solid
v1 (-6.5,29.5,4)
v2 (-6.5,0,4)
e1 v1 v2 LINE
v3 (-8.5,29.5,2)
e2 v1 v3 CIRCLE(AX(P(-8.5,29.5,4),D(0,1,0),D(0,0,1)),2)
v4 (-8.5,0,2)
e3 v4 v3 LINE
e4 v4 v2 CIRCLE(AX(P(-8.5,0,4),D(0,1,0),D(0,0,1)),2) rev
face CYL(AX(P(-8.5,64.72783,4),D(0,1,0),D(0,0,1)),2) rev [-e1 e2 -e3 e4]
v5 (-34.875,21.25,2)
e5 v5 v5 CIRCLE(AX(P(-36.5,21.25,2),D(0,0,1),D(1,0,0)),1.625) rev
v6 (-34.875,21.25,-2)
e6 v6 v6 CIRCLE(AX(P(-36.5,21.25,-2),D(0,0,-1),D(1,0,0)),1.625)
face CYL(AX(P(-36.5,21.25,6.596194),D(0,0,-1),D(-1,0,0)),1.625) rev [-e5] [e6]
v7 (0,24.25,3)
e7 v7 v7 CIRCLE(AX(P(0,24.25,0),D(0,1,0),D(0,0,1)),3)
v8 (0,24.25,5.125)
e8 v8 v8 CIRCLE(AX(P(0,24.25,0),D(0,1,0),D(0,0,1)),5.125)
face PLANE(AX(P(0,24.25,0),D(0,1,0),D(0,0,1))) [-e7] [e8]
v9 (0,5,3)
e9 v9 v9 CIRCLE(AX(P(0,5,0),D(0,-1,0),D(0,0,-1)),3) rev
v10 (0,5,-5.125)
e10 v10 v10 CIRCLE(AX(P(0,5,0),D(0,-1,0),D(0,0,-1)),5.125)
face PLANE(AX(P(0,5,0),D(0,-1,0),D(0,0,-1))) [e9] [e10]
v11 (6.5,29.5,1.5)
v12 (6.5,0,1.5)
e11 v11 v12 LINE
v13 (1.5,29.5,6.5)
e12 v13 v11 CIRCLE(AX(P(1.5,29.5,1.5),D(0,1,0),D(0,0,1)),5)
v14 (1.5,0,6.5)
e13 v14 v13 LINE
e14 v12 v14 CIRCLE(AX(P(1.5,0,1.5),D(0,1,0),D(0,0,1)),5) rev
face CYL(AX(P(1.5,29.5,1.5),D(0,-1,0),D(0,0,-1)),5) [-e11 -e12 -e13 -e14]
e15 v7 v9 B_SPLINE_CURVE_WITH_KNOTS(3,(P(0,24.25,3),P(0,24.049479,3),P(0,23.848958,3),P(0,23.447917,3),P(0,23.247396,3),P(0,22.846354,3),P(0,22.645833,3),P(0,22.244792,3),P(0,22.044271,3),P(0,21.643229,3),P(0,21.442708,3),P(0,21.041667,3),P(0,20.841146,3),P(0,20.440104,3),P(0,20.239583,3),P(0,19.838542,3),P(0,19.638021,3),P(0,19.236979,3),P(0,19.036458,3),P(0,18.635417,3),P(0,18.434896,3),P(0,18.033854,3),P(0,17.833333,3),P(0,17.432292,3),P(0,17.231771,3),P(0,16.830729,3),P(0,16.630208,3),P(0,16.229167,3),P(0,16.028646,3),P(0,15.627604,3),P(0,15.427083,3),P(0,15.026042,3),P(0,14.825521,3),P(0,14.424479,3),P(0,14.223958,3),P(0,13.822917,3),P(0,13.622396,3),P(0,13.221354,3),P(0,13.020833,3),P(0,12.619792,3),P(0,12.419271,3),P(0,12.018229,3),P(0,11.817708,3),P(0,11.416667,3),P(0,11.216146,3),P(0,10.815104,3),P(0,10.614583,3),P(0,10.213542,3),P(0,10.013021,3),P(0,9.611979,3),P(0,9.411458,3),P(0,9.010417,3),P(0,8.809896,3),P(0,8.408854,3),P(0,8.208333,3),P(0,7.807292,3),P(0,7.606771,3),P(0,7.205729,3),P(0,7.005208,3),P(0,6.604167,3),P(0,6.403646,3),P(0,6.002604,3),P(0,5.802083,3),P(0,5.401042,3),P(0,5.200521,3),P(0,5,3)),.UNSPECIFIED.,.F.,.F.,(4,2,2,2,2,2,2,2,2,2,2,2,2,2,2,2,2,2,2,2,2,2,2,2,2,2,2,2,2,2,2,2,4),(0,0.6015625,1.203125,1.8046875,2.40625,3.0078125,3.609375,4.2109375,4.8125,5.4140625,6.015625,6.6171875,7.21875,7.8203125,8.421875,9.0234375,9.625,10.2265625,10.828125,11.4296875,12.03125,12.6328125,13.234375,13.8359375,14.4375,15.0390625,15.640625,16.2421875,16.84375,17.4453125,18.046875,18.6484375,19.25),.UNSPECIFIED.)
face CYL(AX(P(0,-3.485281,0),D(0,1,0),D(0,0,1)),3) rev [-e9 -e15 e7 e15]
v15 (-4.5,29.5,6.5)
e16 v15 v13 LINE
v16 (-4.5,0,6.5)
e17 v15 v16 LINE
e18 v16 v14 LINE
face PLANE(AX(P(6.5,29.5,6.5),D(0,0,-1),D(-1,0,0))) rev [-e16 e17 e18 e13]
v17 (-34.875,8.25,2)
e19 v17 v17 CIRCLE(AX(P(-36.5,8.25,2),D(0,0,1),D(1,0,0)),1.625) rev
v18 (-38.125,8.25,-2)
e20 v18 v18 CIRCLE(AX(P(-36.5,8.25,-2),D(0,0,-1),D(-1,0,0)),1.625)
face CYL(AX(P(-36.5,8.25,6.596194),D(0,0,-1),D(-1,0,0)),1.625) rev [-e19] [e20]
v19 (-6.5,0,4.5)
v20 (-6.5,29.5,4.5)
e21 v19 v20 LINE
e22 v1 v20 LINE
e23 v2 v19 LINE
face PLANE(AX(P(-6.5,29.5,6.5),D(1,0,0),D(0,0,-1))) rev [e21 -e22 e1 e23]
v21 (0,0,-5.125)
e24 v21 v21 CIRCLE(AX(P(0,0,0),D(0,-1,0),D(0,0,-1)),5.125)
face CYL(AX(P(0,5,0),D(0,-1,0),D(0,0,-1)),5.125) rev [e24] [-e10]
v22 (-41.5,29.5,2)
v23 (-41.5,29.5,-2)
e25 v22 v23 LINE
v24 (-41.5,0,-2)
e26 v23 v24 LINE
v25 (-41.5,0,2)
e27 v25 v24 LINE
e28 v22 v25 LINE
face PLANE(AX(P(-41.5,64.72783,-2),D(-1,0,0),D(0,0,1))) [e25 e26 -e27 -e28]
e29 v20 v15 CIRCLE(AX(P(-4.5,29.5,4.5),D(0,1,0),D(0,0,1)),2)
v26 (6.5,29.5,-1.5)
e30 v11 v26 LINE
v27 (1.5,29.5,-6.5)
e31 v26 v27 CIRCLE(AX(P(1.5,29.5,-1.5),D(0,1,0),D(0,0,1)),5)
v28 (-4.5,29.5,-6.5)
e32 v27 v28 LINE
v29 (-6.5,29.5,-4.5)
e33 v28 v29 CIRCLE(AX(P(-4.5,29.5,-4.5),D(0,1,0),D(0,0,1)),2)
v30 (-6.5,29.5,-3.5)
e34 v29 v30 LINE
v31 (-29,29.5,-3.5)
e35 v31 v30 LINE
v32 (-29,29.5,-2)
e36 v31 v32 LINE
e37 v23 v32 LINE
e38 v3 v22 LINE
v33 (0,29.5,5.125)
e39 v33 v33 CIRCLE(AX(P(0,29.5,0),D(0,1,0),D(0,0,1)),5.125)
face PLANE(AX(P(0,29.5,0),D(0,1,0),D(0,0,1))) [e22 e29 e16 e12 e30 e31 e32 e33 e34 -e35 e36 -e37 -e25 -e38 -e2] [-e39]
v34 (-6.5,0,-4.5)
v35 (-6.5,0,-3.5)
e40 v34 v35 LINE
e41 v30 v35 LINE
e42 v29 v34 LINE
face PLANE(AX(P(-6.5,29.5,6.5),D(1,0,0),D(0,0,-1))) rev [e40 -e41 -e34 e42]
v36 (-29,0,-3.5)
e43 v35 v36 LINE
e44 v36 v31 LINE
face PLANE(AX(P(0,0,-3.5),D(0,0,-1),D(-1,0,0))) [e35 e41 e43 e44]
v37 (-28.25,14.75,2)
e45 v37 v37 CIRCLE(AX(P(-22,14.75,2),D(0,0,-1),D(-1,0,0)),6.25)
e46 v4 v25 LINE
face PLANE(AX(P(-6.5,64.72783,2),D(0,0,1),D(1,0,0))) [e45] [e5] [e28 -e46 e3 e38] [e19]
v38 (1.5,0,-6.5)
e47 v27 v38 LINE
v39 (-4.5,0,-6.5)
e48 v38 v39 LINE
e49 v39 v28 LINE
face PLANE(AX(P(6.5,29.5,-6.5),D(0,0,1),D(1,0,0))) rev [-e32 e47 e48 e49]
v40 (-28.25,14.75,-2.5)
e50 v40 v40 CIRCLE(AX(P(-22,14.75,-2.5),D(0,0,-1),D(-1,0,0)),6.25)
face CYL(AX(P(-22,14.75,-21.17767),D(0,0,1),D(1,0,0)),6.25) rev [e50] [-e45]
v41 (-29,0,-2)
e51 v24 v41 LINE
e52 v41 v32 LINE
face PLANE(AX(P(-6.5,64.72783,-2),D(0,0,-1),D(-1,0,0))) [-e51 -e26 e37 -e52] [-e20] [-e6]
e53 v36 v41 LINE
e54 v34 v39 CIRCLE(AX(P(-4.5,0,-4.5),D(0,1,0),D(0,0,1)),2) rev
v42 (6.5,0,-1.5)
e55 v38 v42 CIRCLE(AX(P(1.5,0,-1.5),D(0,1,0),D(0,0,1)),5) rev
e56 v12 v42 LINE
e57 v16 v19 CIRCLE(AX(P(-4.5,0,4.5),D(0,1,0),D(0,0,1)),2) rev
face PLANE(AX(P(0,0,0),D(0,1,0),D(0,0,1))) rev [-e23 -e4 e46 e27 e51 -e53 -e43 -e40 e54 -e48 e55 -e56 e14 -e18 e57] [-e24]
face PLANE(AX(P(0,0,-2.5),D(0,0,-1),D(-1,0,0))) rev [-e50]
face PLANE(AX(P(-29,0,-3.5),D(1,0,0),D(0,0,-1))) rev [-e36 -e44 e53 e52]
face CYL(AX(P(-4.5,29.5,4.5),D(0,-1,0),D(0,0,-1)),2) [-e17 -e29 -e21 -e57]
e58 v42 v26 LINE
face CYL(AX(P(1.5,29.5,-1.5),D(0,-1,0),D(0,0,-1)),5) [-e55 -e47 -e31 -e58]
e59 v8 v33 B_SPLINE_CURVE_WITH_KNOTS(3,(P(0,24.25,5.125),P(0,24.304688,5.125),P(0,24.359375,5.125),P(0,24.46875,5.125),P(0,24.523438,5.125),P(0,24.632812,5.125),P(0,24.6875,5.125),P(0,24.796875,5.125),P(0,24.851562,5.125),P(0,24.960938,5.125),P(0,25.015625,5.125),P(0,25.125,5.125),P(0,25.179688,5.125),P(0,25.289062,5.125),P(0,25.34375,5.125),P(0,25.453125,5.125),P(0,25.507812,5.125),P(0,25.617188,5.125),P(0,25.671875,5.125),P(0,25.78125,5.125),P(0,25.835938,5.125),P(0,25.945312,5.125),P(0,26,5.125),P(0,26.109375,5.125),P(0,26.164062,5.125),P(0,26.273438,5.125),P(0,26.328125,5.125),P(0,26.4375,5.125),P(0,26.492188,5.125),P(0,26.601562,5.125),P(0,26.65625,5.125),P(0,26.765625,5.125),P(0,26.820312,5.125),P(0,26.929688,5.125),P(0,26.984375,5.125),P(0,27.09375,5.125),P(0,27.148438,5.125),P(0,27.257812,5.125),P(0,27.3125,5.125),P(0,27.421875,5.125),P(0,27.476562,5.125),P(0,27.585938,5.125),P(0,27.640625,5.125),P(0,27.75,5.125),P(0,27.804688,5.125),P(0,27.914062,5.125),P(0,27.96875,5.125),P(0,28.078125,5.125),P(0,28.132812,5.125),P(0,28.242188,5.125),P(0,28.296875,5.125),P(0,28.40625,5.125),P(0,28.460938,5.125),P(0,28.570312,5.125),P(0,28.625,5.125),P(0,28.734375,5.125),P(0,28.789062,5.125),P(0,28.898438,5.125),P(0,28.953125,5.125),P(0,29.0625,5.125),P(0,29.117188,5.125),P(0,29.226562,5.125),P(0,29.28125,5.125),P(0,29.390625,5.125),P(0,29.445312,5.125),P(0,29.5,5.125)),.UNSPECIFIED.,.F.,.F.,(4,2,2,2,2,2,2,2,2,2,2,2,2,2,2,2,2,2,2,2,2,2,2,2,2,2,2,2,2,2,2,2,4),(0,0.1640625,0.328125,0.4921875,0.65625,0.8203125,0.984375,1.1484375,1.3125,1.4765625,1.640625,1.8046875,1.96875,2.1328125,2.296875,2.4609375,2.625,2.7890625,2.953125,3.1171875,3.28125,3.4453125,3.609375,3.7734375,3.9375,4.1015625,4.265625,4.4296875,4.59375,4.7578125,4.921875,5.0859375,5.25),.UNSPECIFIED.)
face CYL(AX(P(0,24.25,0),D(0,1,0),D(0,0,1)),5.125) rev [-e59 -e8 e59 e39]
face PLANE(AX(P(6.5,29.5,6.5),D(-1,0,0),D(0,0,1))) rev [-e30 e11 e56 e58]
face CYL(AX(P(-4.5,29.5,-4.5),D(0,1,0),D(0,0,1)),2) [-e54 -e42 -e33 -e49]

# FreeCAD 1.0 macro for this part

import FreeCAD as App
import Part
import Sketcher


def edges_at(feature, points):
    """Names of the edges that pass closest to the given points."""
    edges = feature.Shape.Edges
    near = lambda p: min(range(len(edges)), key=lambda i: edges[i].distToShape(Part.Vertex(*p))[0])
    return sorted({f"Edge{near(p) + 1}" for p in points})

doc = App.newDocument("Part")
body = doc.addObject("PartDesign::Body", "Body")

# Sketch on XZ plane
sketch1 = body.newObject("Sketcher::SketchObject", "Sketch")
sketch1.AttachmentSupport = (doc.getObject("XZ_Plane"), [""])
sketch1.MapMode = "FlatFace"
sketch1.addGeometry(Part.LineSegment(App.Vector(-6, -6, 0), App.Vector(-6, 6, 0)), False)
sketch1.addGeometry(Part.LineSegment(App.Vector(-6, 6, 0), App.Vector(6, 6, 0)), False)
sketch1.addGeometry(Part.LineSegment(App.Vector(6, 6, 0), App.Vector(6, -6, 0)), False)
sketch1.addGeometry(Part.LineSegment(App.Vector(6, -6, 0), App.Vector(-6, -6, 0)), False)
sketch1.addConstraint(Sketcher.Constraint("Coincident", 0, 2, 1, 1))
sketch1.addConstraint(Sketcher.Constraint("Coincident", 1, 2, 2, 1))
sketch1.addConstraint(Sketcher.Constraint("Coincident", 2, 2, 3, 1))
sketch1.addConstraint(Sketcher.Constraint("Coincident", 3, 2, 0, 1))
sketch1.addConstraint(Sketcher.Constraint("Vertical", 0))
sketch1.addConstraint(Sketcher.Constraint("Horizontal", 1))
sketch1.addConstraint(Sketcher.Constraint("Vertical", 2))
sketch1.addConstraint(Sketcher.Constraint("Horizontal", 3))
sketch1.addConstraint(Sketcher.Constraint("Symmetric", 0, 2, 2, 2, -1, 1))
sketch1.addConstraint(Sketcher.Constraint("Equal", 3, 0))
sketch1.addConstraint(Sketcher.Constraint("DistanceX", 1, 1, 1, 2, 13.0))
pad1 = body.newObject("PartDesign::Pad", "Pad")
pad1.Profile = sketch1
pad1.Length = 29.5
pad1.Reversed = True

# Sketch on XZ plane
sketch2 = body.newObject("Sketcher::SketchObject", "Sketch001")
sketch2.AttachmentSupport = (doc.getObject("XZ_Plane"), [""])
sketch2.MapMode = "FlatFace"
sketch2.addGeometry(Part.LineSegment(App.Vector(-41.5, 2, 0), App.Vector(-41.5, -2, 0)), False)
sketch2.addGeometry(Part.LineSegment(App.Vector(-41.5, -2, 0), App.Vector(-6.5, -2, 0)), False)
sketch2.addGeometry(Part.LineSegment(App.Vector(-6.5, -2, 0), App.Vector(-6.5, 2, 0)), False)
sketch2.addGeometry(Part.LineSegment(App.Vector(-6.5, 2, 0), App.Vector(-41.5, 2, 0)), False)
sketch2.addConstraint(Sketcher.Constraint("Coincident", 0, 2, 1, 1))
sketch2.addConstraint(Sketcher.Constraint("Coincident", 1, 2, 2, 1))
sketch2.addConstraint(Sketcher.Constraint("Coincident", 2, 2, 3, 1))
sketch2.addConstraint(Sketcher.Constraint("Coincident", 3, 2, 0, 1))
sketch2.addConstraint(Sketcher.Constraint("Vertical", 0))
sketch2.addConstraint(Sketcher.Constraint("Horizontal", 1))
sketch2.addConstraint(Sketcher.Constraint("Vertical", 2))
sketch2.addConstraint(Sketcher.Constraint("Horizontal", 3))
sketch2.addConstraint(Sketcher.Constraint("DistanceX", 1, 1, 1, 2, 35.0))
sketch2.addConstraint(Sketcher.Constraint("DistanceY", 0, 2, 0, 1, 4.0))
sketch2.addConstraint(Sketcher.Constraint("DistanceY", 0, 2, -1, 1, 2.0))
sketch2.addConstraint(Sketcher.Constraint("DistanceX", 0, 2, -1, 1, 41.5))
pad2 = body.newObject("PartDesign::Pad", "Pad001")
pad2.Profile = sketch2
pad2.Length = 29.5
pad2.Reversed = True

# Sketch on XZ plane
sketch3 = body.newObject("Sketcher::SketchObject", "Sketch002")
sketch3.AttachmentSupport = (doc.getObject("XZ_Plane"), [""])
sketch3.MapMode = "FlatFace"
sketch3.AttachmentOffset = App.Placement(App.Vector(0, 0, -29.5), App.Rotation())
sketch3.addGeometry(Part.Circle(App.Vector(0, 0, 0), App.Vector(0, 0, 1), 5), False)
sketch3.addConstraint(Sketcher.Constraint("Coincident", 0, 3, -1, 1))
sketch3.addConstraint(Sketcher.Constraint("Diameter", 0, 10.25))
pocket1 = body.newObject("PartDesign::Pocket", "Pocket")
pocket1.Profile = sketch3
pocket1.Length = 5.25
pocket1.Reversed = True

# Sketch on XZ plane
sketch4 = body.newObject("Sketcher::SketchObject", "Sketch003")
sketch4.AttachmentSupport = (doc.getObject("XZ_Plane"), [""])
sketch4.MapMode = "FlatFace"
sketch4.AttachmentOffset = App.Placement(App.Vector(0, 0, -5), App.Rotation())
sketch4.addGeometry(Part.Circle(App.Vector(0, 0, 0), App.Vector(0, 0, 1), 5), False)
sketch4.addConstraint(Sketcher.Constraint("Coincident", 0, 3, -1, 1))
sketch4.addConstraint(Sketcher.Constraint("Diameter", 0, 10.25))
pocket2 = body.newObject("PartDesign::Pocket", "Pocket001")
pocket2.Profile = sketch4
pocket2.Length = 5
pocket2.Reversed = True

# Sketch on XZ plane
sketch5 = body.newObject("Sketcher::SketchObject", "Sketch004")
sketch5.AttachmentSupport = (doc.getObject("XZ_Plane"), [""])
sketch5.MapMode = "FlatFace"
sketch5.AttachmentOffset = App.Placement(App.Vector(0, 0, -24.25), App.Rotation())
sketch5.addGeometry(Part.Circle(App.Vector(0, 0, 0), App.Vector(0, 0, 1), 3), False)
sketch5.addConstraint(Sketcher.Constraint("Coincident", 0, 3, -1, 1))
sketch5.addConstraint(Sketcher.Constraint("Diameter", 0, 6.0))
pocket3 = body.newObject("PartDesign::Pocket", "Pocket002")
pocket3.Profile = sketch5
pocket3.Length = 19.25
pocket3.Reversed = True
doc.recompute()

fillet = body.newObject("PartDesign::Fillet", "Fillet")
fillet.Base = (pocket3, edges_at(pocket3, [(6.5, 14.75, -6.5)]))
fillet.Radius = 5
doc.recompute()

fillet2 = body.newObject("PartDesign::Fillet", "Fillet001")
fillet2.Base = (fillet, edges_at(fillet, [(6.5, 14.75, 6.5)]))
fillet2.Radius = 5
doc.recompute()

fillet3 = body.newObject("PartDesign::Fillet", "Fillet002")
fillet3.Base = (fillet2, edges_at(fillet2, [(-6.5, 14.75, -6.5)]))
fillet3.Radius = 2
doc.recompute()

fillet4 = body.newObject("PartDesign::Fillet", "Fillet003")
fillet4.Base = (fillet3, edges_at(fillet3, [(-6.5, 14.75, 6.5)]))
fillet4.Radius = 2
doc.recompute()

fillet5 = body.newObject("PartDesign::Fillet", "Fillet004")
fillet5.Base = (fillet4, edges_at(fillet4, [(-6.5, 14.75, 2)]))
fillet5.Radius = 2

# Sketch on XY plane
sketch6 = body.newObject("Sketcher::SketchObject", "Sketch005")
sketch6.AttachmentSupport = (doc.getObject("XY_Plane"), [""])
sketch6.MapMode = "FlatFace"
sketch6.AttachmentOffset = App.Placement(App.Vector(0, 0, -2), App.Rotation())
sketch6.addGeometry(Part.Circle(App.Vector(-36.5, 8.2, 0), App.Vector(0, 0, 1), 1.6), False)
sketch6.addGeometry(Part.Circle(App.Vector(-36.5, 21.2, 0), App.Vector(0, 0, 1), 1.6), False)
sketch6.addConstraint(Sketcher.Constraint("Equal", 0, 1))
sketch6.addConstraint(Sketcher.Constraint("Vertical", 0, 3, 1, 3))
sketch6.addConstraint(Sketcher.Constraint("Diameter", 0, 3.25))
sketch6.addConstraint(Sketcher.Constraint("DistanceY", 0, 3, 1, 3, 13.0))
sketch6.addConstraint(Sketcher.Constraint("DistanceX", 0, 3, -1, 1, 36.5))
sketch6.addConstraint(Sketcher.Constraint("DistanceY", -1, 1, 0, 3, 8.25))
pocket4 = body.newObject("PartDesign::Pocket", "Pocket003")
pocket4.Profile = sketch6
pocket4.Length = 4
pocket4.Reversed = True

# Sketch on XY plane
sketch7 = body.newObject("Sketcher::SketchObject", "Sketch006")
sketch7.AttachmentSupport = (doc.getObject("XY_Plane"), [""])
sketch7.MapMode = "FlatFace"
sketch7.AttachmentOffset = App.Placement(App.Vector(0, 0, -2), App.Rotation())
sketch7.addGeometry(Part.LineSegment(App.Vector(-6, 30, 0), App.Vector(-6, 0, 0)), False)
sketch7.addGeometry(Part.LineSegment(App.Vector(-6, 0, 0), App.Vector(-29, 0, 0)), False)
sketch7.addGeometry(Part.LineSegment(App.Vector(-29, 0, 0), App.Vector(-29, 30, 0)), False)
sketch7.addGeometry(Part.LineSegment(App.Vector(-29, 30, 0), App.Vector(-6, 30, 0)), False)
sketch7.addConstraint(Sketcher.Constraint("Coincident", 0, 2, 1, 1))
sketch7.addConstraint(Sketcher.Constraint("Coincident", 1, 2, 2, 1))
sketch7.addConstraint(Sketcher.Constraint("Coincident", 2, 2, 3, 1))
sketch7.addConstraint(Sketcher.Constraint("Coincident", 3, 2, 0, 1))
sketch7.addConstraint(Sketcher.Constraint("Vertical", 0))
sketch7.addConstraint(Sketcher.Constraint("Horizontal", 1))
sketch7.addConstraint(Sketcher.Constraint("Vertical", 2))
sketch7.addConstraint(Sketcher.Constraint("Horizontal", 3))
sketch7.addConstraint(Sketcher.Constraint("PointOnObject", 0, 2, -1))
sketch7.addConstraint(Sketcher.Constraint("DistanceX", 1, 2, 1, 1, 22.5))
sketch7.addConstraint(Sketcher.Constraint("DistanceY", 0, 2, 0, 1, 29.5))
sketch7.addConstraint(Sketcher.Constraint("DistanceX", 1, 2, -1, 1, 29.0))
pad3 = body.newObject("PartDesign::Pad", "Pad002")
pad3.Profile = sketch7
pad3.Length = 1.5
pad3.Reversed = True

# Sketch on XY plane
sketch8 = body.newObject("Sketcher::SketchObject", "Sketch007")
sketch8.AttachmentSupport = (doc.getObject("XY_Plane"), [""])
sketch8.MapMode = "FlatFace"
sketch8.AttachmentOffset = App.Placement(App.Vector(0, 0, 2), App.Rotation())
sketch8.addGeometry(Part.Circle(App.Vector(-22, 15, 0), App.Vector(0, 0, 1), 6), False)
sketch8.addConstraint(Sketcher.Constraint("Diameter", 0, 12.5))
sketch8.addConstraint(Sketcher.Constraint("DistanceX", 0, 3, -1, 1, 22.0))
sketch8.addConstraint(Sketcher.Constraint("DistanceY", -1, 1, 0, 3, 14.75))
pocket5 = body.newObject("PartDesign::Pocket", "Pocket004")
pocket5.Profile = sketch8
pocket5.Length = 4.5

doc.recompute()
